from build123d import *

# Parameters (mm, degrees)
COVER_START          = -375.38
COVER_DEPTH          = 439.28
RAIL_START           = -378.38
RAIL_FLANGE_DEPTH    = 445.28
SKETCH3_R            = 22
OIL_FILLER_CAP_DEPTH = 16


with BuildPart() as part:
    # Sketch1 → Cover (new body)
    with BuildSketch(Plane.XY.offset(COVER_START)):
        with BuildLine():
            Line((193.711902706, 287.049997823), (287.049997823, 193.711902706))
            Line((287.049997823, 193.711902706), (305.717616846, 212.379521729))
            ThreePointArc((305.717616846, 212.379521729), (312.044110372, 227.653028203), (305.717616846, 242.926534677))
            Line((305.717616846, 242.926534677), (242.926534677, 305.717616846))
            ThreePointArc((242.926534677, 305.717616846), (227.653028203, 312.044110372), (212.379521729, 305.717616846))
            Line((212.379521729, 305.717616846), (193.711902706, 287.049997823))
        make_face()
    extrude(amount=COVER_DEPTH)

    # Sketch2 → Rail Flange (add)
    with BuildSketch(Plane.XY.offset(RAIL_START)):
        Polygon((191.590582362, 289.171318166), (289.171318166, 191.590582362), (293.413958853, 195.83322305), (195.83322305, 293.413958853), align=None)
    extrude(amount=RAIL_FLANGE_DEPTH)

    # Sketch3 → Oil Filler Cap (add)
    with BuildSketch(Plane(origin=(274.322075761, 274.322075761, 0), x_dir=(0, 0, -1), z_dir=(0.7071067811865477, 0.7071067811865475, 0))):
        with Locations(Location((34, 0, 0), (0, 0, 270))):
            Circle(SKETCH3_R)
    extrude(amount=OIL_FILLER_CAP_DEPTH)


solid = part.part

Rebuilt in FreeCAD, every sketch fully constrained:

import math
import FreeCAD as App
import Part
import Sketcher
from FreeCAD import Vector
Q = App.Units.Quantity


def add_polygon(sketch, points):
    """Adds a closed chain of lines whose ends are joined by coincident constraints."""
    first, n = sketch.GeometryCount, len(points)
    for a, b in zip(points, points[1:] + points[:1]):
        sketch.addGeometry(Part.LineSegment(App.Vector(*a, 0), App.Vector(*b, 0)), False)
    for i in range(n):
        sketch.addConstraint(Sketcher.Constraint("Coincident", first + i, 2, first + (i + 1) % n, 1))

doc = App.newDocument("Part")
body = doc.addObject("PartDesign::Body", "Body")

# Sketch on XY plane
sketch1 = body.newObject("Sketcher::SketchObject", "Sketch")
sketch1.AttachmentSupport = (doc.getObject("XY_Plane"), [""])
sketch1.MapMode = "FlatFace"
sketch1.AttachmentOffset = App.Placement(Vector(0, 0, -375.38), App.Rotation())
sketch1.addGeometry(Part.LineSegment(Vector(194, 287, 0), Vector(287, 194, 0)), False)
sketch1.addGeometry(Part.LineSegment(Vector(287, 194, 0), Vector(306, 212, 0)), False)
sketch1.addGeometry(Part.ArcOfCircle(Part.Circle(Vector(290, 228, 0), Vector(0, 0, 1), 22), math.radians(-45), math.radians(45)), False)
sketch1.addGeometry(Part.LineSegment(Vector(306, 243, 0), Vector(243, 306, 0)), False)
sketch1.addGeometry(Part.ArcOfCircle(Part.Circle(Vector(228, 290, 0), Vector(0, 0, 1), 22), math.radians(45), math.radians(135)), False)
sketch1.addGeometry(Part.LineSegment(Vector(212, 306, 0), Vector(194, 287, 0)), False)
sketch1.addConstraint(Sketcher.Constraint("Coincident", 0, 2, 1, 1))
sketch1.addConstraint(Sketcher.Constraint("Tangent", 1, 2, 2, 1))
sketch1.addConstraint(Sketcher.Constraint("Tangent", 2, 2, 3, 1))
sketch1.addConstraint(Sketcher.Constraint("Tangent", 3, 2, 4, 1))
sketch1.addConstraint(Sketcher.Constraint("Tangent", 4, 2, 5, 1))
sketch1.addConstraint(Sketcher.Constraint("Coincident", 5, 2, 0, 1))
sketch1.addConstraint(Sketcher.Constraint("Equal", 2, 4))
sketch1.addConstraint(Sketcher.Constraint("Perpendicular", 0, 1))
sketch1.addConstraint(Sketcher.Constraint("Perpendicular", 1, 3))
sketch1.addConstraint(Sketcher.Constraint("Perpendicular", 3, 5))
sketch1.addConstraint(Sketcher.Constraint("Horizontal", 3, 2, 4, 2))
sketch1.addConstraint(Sketcher.Constraint("Radius", 2, 21.6))
sketch1.addConstraint(Sketcher.Constraint("Distance", 0, 132.0))
sketch1.addConstraint(Sketcher.Constraint("Distance", 1, 26.4))
sketch1.addConstraint(Sketcher.Constraint("DistanceX", -1, 1, 2, 3, 290.44411))
sketch1.addConstraint(Sketcher.Constraint("DistanceY", -1, 1, 2, 3, 227.653028))
pad1 = body.newObject("PartDesign::Pad", "Pad")
pad1.Profile = sketch1
pad1.Length = 439.28

# Sketch on XY plane
sketch2 = body.newObject("Sketcher::SketchObject", "Sketch001")
sketch2.AttachmentSupport = (doc.getObject("XY_Plane"), [""])
sketch2.MapMode = "FlatFace"
sketch2.AttachmentOffset = App.Placement(Vector(0, 0, -378.38), App.Rotation())
add_polygon(sketch2, [(192, 289), (289, 192), (293, 196), (196, 293)])  # lines 0-3
sketch2.addConstraint(Sketcher.Constraint("Perpendicular", 0, 1))
sketch2.addConstraint(Sketcher.Constraint("Perpendicular", 1, 2))
sketch2.addConstraint(Sketcher.Constraint("Perpendicular", 2, 3))
sketch2.addConstraint(Sketcher.Constraint("Angle", 0, Q("-45 deg")))
sketch2.addConstraint(Sketcher.Constraint("Distance", 0, 138.0))
sketch2.addConstraint(Sketcher.Constraint("Distance", 1, 6.0))
sketch2.addConstraint(Sketcher.Constraint("DistanceX", -1, 1, 0, 2, 289.171318))
sketch2.addConstraint(Sketcher.Constraint("DistanceY", -1, 1, 2, 2, 293.413959))
pad2 = body.newObject("PartDesign::Pad", "Pad001")
pad2.Profile = sketch2
pad2.Length = 445.28

# Sketch on an angled plane
sketch3 = body.newObject("Sketcher::SketchObject", "Sketch002")
sketch3.Placement = App.Placement(Vector(274.322076, 274.322076, 0), App.Rotation(Vector(0, 0, -1), Vector(-0.707106781, 0.707106781, 0), Vector(0.707106781, 0.707106781, 0), "ZXY"))
sketch3.addGeometry(Part.Circle(Vector(34, 0, 0), Vector(0, 0, 1), 22), False)
sketch3.addConstraint(Sketcher.Constraint("PointOnObject", 0, 3, -1))
sketch3.addConstraint(Sketcher.Constraint("Diameter", 0, 44.0))
sketch3.addConstraint(Sketcher.Constraint("DistanceX", -1, 1, 0, 3, 34.0))
pad3 = body.newObject("PartDesign::Pad", "Pad002")
pad3.Profile = sketch3
pad3.Length = 16

doc.recompute()
